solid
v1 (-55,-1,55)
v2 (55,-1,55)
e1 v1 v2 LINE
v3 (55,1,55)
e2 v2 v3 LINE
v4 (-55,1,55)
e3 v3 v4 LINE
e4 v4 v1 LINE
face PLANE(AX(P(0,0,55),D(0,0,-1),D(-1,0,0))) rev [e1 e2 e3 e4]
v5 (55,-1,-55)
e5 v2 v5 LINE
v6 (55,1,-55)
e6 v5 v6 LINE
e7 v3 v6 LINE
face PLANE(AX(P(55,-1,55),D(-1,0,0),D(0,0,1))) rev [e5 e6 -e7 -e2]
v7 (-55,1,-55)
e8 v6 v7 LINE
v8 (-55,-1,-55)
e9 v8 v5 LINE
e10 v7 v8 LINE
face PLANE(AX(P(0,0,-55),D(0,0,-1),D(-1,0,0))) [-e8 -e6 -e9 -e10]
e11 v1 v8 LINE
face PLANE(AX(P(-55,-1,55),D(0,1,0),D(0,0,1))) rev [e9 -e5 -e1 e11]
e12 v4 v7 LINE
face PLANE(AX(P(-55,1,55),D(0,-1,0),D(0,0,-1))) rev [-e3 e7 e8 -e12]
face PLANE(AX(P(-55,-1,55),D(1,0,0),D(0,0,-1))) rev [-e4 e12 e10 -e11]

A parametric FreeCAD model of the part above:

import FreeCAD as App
import Part
import Sketcher
from FreeCAD import Vector

doc = App.newDocument("Part")
body = doc.addObject("PartDesign::Body", "Body")

sketch1 = body.newObject("Sketcher::SketchObject", "Sketch")
sketch1.AttachmentSupport = (doc.getObject("XY_Plane"), [""])
sketch1.MapMode = "FlatFace"
sketch1.addGeometry([
    Part.LineSegment(Vector(-55, 1, 0), Vector(-55, -1, 0)),
    Part.LineSegment(Vector(-55, -1, 0), Vector(55, -1, 0)),
    Part.LineSegment(Vector(55, -1, 0), Vector(55, 1, 0)),
    Part.LineSegment(Vector(55, 1, 0), Vector(-55, 1, 0)),
], False)
sketch1.addConstraint([
    Sketcher.Constraint("Coincident", 0, 2, 1, 1),
    Sketcher.Constraint("Coincident", 1, 2, 2, 1),
    Sketcher.Constraint("Coincident", 2, 2, 3, 1),
    Sketcher.Constraint("Coincident", 3, 2, 0, 1),
    Sketcher.Constraint("Vertical", 0),
    Sketcher.Constraint("Horizontal", 1),
    Sketcher.Constraint("Vertical", 2),
    Sketcher.Constraint("Horizontal", 3),
    Sketcher.Constraint("Symmetric", 0, 2, 2, 2, -1, 1),
    Sketcher.Constraint("DistanceX", 1, 1, 1, 2, 110.0),
    Sketcher.Constraint("DistanceY", 0, 2, 0, 1, 2.0),
])
pad1 = body.newObject("PartDesign::Pad", "Pad")
pad1.Profile = sketch1
pad1.Length = 110
pad1.Midplane = True

doc.recompute()
